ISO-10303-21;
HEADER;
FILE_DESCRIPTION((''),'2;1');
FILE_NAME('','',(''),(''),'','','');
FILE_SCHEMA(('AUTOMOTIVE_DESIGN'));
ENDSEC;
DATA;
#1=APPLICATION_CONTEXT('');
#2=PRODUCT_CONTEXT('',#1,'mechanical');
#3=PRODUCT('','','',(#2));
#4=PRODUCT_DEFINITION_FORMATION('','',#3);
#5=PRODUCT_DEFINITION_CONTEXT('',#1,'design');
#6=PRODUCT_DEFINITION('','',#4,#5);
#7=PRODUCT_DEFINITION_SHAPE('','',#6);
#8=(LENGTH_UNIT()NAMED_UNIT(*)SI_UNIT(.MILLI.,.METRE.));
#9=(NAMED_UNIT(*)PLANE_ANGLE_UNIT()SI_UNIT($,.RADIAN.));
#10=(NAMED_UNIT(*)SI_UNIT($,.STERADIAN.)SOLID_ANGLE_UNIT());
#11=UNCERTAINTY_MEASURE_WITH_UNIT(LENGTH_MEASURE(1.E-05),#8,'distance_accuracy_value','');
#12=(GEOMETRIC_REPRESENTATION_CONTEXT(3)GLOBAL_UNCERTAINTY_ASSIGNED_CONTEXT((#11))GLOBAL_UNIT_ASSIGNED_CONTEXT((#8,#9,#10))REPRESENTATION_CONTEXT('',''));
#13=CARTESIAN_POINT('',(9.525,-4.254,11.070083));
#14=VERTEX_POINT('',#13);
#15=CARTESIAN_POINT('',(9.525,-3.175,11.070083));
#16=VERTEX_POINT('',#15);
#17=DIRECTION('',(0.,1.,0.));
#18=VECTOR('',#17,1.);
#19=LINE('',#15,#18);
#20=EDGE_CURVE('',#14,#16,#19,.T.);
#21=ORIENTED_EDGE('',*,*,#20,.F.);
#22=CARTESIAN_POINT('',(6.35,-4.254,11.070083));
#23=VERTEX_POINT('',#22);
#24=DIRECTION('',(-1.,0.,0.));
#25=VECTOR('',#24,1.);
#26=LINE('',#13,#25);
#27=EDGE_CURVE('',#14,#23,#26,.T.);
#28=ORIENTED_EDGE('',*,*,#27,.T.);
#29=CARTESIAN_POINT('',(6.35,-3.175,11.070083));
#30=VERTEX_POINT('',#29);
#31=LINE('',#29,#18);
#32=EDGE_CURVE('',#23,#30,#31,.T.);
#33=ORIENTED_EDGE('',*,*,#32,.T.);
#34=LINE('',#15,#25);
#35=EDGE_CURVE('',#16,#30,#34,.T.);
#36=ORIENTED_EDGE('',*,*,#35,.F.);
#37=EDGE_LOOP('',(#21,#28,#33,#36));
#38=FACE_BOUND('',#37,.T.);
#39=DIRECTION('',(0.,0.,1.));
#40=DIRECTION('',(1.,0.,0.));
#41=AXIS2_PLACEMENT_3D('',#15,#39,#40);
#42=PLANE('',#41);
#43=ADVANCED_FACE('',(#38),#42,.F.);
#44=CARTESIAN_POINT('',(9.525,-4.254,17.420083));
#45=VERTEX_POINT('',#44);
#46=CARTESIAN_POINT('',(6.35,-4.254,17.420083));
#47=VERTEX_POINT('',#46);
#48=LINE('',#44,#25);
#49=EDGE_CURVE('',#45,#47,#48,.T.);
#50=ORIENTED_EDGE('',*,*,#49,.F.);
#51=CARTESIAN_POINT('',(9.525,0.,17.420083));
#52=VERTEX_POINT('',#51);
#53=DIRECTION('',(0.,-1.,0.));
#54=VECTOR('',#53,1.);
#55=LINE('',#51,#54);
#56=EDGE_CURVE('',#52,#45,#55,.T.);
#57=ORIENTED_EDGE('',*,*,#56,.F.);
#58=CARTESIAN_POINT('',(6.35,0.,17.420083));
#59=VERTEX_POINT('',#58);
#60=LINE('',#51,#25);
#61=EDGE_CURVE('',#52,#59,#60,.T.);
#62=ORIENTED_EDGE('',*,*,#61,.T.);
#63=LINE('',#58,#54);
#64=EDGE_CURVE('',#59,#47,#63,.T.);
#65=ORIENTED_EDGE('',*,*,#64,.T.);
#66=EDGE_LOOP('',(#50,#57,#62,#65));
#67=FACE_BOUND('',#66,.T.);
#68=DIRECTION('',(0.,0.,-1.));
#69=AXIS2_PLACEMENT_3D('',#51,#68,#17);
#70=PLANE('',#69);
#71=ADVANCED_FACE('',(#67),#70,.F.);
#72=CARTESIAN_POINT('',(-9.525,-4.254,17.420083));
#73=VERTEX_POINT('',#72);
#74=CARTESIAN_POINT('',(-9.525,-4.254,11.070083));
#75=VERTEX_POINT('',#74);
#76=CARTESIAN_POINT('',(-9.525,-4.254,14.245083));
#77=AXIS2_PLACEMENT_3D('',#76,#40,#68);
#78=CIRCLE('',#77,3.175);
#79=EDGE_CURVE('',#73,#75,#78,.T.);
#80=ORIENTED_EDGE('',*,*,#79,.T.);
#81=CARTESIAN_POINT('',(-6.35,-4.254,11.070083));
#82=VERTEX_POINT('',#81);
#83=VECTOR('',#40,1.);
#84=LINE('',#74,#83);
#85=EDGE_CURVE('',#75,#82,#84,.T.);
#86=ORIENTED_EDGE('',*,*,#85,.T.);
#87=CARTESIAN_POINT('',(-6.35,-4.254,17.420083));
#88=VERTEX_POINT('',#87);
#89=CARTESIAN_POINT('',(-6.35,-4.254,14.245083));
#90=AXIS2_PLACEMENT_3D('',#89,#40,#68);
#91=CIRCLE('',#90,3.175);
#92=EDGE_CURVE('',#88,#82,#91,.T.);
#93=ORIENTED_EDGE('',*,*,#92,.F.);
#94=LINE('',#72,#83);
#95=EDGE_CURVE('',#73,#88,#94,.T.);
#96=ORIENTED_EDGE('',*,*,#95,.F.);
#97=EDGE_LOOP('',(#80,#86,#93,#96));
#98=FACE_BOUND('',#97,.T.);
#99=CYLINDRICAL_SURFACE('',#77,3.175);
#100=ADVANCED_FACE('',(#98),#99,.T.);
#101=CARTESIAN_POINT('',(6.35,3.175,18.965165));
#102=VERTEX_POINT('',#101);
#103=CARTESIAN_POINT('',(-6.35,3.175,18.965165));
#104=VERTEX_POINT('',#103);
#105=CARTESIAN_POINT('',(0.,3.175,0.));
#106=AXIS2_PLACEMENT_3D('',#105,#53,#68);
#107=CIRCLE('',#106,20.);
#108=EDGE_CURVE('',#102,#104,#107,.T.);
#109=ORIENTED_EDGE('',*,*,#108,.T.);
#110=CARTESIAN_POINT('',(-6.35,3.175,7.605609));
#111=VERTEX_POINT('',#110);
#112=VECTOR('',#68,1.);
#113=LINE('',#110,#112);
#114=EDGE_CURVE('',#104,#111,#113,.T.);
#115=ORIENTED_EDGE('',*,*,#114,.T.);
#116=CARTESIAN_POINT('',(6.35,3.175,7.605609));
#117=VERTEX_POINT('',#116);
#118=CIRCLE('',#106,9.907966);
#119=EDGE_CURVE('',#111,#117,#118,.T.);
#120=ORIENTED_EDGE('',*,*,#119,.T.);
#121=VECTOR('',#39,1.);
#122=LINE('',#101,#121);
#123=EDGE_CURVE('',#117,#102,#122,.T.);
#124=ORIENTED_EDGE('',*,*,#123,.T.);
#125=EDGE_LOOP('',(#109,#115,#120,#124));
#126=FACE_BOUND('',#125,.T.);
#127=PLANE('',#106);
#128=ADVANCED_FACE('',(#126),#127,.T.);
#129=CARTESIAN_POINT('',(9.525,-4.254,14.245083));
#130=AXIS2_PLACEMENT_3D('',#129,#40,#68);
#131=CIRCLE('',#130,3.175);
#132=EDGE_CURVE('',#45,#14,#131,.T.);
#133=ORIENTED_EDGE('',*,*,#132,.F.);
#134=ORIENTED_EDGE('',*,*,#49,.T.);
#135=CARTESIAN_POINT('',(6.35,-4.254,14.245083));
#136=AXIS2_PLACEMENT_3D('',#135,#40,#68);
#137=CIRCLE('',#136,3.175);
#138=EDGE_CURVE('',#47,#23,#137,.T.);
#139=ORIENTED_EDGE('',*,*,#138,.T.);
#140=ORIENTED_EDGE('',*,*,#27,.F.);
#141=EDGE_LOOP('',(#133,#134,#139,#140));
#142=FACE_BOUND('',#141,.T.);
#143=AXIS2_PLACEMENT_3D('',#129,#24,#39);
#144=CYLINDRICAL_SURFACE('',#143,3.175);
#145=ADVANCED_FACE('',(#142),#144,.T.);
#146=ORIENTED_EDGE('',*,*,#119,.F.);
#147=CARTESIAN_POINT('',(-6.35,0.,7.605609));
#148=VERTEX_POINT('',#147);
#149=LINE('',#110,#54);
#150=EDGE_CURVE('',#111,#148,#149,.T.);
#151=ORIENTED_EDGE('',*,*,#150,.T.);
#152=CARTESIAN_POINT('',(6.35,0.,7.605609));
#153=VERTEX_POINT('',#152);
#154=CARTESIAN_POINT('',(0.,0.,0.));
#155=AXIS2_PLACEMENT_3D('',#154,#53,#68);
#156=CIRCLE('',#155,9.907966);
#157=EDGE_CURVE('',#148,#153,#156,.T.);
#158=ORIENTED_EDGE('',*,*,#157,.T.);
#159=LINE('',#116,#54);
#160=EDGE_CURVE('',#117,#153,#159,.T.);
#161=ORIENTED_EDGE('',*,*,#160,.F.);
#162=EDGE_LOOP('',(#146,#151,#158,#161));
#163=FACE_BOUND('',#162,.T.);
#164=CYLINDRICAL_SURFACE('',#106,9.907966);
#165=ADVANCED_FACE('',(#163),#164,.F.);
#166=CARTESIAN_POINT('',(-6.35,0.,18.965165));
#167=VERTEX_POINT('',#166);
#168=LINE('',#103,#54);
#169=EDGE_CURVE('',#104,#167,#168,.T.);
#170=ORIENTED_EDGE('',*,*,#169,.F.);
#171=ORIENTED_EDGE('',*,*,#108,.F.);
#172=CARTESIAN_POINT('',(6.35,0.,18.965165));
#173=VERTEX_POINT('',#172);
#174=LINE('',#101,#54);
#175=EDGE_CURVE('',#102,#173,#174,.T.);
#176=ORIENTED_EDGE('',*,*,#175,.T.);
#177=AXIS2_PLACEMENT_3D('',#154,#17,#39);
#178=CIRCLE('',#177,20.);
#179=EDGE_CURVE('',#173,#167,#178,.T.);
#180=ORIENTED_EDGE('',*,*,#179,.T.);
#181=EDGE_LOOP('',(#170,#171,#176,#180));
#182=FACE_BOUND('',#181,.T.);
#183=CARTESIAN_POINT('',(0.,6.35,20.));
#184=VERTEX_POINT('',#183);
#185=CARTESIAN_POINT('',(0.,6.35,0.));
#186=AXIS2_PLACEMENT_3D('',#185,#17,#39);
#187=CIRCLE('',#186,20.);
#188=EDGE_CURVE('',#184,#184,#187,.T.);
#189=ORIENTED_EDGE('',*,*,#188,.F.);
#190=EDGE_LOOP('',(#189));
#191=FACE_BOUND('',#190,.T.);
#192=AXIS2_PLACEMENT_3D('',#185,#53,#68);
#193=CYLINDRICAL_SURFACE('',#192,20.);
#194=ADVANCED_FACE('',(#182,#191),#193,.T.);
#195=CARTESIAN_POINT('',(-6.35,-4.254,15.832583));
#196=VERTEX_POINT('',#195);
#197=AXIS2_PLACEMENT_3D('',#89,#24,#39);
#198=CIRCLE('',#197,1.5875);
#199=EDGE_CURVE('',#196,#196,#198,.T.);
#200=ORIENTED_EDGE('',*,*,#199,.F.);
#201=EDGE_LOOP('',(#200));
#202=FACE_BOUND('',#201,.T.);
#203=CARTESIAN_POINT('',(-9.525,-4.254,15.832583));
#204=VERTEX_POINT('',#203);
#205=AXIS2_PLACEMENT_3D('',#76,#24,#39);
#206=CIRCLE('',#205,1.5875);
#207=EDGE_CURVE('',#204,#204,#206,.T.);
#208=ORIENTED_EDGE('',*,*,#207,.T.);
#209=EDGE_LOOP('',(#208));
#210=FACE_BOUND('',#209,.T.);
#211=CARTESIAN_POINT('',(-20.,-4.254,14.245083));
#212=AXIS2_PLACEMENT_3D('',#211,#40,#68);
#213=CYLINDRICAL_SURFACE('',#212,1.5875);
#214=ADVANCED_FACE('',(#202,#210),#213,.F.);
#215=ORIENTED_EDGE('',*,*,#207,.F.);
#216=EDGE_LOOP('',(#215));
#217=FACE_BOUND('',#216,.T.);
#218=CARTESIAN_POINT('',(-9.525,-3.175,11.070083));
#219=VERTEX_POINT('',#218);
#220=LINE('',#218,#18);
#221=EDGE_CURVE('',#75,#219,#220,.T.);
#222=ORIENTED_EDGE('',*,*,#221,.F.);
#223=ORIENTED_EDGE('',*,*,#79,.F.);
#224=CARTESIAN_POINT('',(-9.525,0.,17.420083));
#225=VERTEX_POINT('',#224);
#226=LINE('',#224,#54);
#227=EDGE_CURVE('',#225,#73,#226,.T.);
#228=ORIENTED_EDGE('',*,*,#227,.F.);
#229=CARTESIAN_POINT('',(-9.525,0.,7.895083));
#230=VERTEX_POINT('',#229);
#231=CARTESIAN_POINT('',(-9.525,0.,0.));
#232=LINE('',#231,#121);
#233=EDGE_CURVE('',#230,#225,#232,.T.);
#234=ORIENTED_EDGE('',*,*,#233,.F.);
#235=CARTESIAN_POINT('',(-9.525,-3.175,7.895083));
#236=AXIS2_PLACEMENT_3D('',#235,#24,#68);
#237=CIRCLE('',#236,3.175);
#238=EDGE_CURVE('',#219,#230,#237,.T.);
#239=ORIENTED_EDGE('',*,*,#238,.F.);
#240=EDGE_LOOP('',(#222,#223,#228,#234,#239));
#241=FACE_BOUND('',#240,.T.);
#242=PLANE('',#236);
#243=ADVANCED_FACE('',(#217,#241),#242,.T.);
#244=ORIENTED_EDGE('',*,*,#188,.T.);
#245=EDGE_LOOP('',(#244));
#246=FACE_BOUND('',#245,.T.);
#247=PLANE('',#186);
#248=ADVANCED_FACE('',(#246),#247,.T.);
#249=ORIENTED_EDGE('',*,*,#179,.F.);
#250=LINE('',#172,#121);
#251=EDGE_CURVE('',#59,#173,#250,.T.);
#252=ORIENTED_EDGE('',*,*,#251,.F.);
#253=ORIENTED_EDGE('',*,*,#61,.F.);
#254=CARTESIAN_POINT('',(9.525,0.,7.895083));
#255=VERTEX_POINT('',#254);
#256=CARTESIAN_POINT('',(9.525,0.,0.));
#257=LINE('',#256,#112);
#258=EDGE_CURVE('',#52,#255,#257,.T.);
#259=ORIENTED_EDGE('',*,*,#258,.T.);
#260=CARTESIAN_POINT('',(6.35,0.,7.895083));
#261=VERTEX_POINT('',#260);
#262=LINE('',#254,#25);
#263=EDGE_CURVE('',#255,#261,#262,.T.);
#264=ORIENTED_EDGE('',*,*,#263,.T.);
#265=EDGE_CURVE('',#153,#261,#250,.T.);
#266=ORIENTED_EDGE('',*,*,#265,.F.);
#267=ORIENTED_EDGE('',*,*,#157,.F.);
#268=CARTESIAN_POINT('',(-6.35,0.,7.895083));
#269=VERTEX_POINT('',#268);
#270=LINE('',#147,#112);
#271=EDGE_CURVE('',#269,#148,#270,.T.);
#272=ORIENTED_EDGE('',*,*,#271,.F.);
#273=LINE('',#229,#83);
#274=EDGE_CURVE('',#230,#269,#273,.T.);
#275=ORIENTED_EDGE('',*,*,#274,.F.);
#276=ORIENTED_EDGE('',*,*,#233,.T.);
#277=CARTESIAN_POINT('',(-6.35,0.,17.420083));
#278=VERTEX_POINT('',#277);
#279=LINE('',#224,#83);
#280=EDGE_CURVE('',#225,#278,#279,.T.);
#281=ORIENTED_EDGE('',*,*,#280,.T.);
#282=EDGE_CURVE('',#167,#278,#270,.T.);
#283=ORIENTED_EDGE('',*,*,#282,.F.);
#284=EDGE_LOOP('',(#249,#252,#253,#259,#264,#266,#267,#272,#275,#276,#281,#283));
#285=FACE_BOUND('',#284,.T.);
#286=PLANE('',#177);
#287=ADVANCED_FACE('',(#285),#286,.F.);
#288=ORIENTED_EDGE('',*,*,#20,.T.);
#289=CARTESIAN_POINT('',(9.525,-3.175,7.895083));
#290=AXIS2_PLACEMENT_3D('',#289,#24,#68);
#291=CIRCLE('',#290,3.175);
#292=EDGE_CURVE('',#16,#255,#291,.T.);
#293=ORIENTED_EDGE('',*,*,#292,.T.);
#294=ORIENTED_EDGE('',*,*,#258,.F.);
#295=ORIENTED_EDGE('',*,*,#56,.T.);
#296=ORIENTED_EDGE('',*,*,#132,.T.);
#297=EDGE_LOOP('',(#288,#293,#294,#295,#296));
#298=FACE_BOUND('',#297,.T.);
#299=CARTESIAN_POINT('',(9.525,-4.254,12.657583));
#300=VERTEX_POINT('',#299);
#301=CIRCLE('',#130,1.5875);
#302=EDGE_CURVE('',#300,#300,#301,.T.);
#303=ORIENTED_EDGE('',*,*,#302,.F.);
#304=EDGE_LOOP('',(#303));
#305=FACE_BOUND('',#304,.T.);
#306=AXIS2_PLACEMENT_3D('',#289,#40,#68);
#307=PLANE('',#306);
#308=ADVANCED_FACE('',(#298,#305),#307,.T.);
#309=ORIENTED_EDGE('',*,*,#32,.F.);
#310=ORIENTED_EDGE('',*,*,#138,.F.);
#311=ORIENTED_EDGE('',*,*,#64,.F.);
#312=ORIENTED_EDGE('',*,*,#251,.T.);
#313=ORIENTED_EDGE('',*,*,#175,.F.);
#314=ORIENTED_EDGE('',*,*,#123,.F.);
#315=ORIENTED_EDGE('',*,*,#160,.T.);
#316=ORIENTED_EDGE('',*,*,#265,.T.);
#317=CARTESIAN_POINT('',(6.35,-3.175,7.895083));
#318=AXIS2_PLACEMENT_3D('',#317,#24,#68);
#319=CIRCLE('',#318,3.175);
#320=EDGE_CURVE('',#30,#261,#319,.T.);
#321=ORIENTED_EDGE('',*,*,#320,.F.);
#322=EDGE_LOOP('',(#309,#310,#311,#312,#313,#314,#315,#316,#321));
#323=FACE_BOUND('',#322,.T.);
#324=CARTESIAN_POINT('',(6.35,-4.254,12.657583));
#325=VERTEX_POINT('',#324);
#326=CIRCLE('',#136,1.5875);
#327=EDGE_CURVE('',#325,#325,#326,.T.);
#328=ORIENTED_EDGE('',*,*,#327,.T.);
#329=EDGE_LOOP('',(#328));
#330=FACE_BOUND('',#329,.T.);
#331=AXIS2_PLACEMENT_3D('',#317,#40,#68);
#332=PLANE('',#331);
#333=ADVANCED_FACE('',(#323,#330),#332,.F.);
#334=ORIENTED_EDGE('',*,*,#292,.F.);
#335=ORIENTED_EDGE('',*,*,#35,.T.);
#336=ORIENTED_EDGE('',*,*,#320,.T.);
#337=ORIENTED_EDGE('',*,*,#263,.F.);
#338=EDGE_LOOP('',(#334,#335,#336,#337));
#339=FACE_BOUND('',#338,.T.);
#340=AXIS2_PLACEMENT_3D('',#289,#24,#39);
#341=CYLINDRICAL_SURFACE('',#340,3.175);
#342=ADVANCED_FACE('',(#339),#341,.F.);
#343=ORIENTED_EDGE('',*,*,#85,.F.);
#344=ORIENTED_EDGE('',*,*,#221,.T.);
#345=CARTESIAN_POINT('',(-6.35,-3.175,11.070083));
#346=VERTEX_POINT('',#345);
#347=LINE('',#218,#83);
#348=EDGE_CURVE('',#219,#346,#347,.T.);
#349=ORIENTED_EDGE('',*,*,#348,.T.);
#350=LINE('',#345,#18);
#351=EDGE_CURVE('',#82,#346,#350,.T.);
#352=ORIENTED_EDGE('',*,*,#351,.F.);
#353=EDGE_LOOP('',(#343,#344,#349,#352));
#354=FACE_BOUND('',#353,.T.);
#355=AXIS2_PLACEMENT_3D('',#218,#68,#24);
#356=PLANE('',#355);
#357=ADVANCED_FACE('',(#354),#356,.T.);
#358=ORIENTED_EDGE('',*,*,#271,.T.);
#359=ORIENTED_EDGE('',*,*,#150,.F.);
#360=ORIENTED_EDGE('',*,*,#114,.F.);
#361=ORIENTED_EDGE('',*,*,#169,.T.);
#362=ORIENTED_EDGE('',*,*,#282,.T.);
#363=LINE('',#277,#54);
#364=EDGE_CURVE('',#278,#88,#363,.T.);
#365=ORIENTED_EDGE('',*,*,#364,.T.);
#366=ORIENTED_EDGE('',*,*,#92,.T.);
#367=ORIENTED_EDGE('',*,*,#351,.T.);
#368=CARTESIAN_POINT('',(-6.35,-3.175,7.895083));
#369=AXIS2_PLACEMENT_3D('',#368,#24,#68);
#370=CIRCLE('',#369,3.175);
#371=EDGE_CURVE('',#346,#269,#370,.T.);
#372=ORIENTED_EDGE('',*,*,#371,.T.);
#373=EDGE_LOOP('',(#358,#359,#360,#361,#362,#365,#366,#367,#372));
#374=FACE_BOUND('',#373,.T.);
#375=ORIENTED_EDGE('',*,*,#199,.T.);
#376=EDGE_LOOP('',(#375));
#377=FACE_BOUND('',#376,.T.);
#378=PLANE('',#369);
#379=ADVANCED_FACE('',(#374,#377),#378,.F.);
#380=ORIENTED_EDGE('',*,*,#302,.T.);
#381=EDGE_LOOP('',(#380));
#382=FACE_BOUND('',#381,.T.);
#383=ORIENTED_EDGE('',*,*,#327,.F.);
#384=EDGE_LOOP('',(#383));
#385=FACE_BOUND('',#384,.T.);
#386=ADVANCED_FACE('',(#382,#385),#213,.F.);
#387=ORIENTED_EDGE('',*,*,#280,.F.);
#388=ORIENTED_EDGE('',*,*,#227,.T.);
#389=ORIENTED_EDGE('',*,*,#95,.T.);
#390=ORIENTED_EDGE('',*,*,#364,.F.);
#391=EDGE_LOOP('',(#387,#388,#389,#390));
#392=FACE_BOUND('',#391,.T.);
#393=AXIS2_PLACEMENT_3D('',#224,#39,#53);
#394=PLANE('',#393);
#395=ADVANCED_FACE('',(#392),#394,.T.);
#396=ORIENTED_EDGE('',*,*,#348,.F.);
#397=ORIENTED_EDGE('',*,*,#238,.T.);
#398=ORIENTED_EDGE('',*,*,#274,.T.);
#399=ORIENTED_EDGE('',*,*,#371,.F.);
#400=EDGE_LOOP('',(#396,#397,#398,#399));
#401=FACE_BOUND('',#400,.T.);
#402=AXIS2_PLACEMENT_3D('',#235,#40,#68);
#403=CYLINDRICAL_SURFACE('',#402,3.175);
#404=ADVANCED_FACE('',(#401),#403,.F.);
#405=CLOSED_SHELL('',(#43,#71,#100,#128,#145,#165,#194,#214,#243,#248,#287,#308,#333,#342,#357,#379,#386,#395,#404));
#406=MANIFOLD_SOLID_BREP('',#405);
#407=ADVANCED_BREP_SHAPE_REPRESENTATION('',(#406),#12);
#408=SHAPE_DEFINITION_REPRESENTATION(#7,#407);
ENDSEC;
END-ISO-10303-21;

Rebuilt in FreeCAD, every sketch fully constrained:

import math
import FreeCAD as App
import Part
import Sketcher
Q = App.Units.Quantity

doc = App.newDocument("Part")
body = doc.addObject("PartDesign::Body", "Body")

sketch1 = body.newObject("Sketcher::SketchObject", "Sketch")
sketch1.AttachmentSupport = (doc.getObject("XZ_Plane"), [""])
sketch1.MapMode = "FlatFace"
sketch1.addGeometry(Part.Circle(App.Vector(0, 0, 0), App.Vector(0, 0, 1), 20), False)
sketch1.addConstraint(Sketcher.Constraint("Coincident", 0, 3, -1, 1))
sketch1.addConstraint(Sketcher.Constraint("Diameter", 0, Q("40 mm")))
pad1 = body.newObject("PartDesign::Pad", "Pad")
pad1.Profile = sketch1
pad1.Length = Q("0.25 in")
pad1.Reversed = True

sketch2 = body.newObject("Sketcher::SketchObject", "Sketch001")
sketch2.AttachmentSupport = (doc.getObject("YZ_Plane"), [""])
sketch2.MapMode = "FlatFace"
sketch2.AttachmentOffset = App.Placement(App.Vector(0, 0, 0.25 * 25.4), App.Rotation())
sketch2.addGeometry(Part.LineSegment(App.Vector(0, 17.4, 0), App.Vector(-4.3, 17.4, 0)), False)
sketch2.addGeometry(Part.ArcOfCircle(Part.Circle(App.Vector(-4.3, 14.2, 0), App.Vector(0, 0, 1), 3.2), math.radians(90), math.radians(270)), False)
sketch2.addGeometry(Part.LineSegment(App.Vector(-4.3, 11.1, 0), App.Vector(-3.2, 11.1, 0)), False)
sketch2.addGeometry(Part.ArcOfCircle(Part.Circle(App.Vector(-3.2, 7.9, 0), App.Vector(0, 0, 1), 3.2), math.radians(0), math.radians(90)), False)
sketch2.addGeometry(Part.LineSegment(App.Vector(0, 7.9, 0), App.Vector(0, 5.8, 0)), False)
sketch2.addGeometry(Part.LineSegment(App.Vector(0, 5.8, 0), App.Vector(6.3, 5.8, 0)), False)
sketch2.addGeometry(Part.LineSegment(App.Vector(6.3, 5.8, 0), App.Vector(6.3, 11.1, 0)), False)
sketch2.addGeometry(Part.ArcOfCircle(Part.Circle(App.Vector(0, 11.1, 0), App.Vector(0, 0, 1), 6.3), math.radians(0), math.radians(90)), False)
sketch2.addConstraint(Sketcher.Constraint("Tangent", 0, 2, 1, 1))
sketch2.addConstraint(Sketcher.Constraint("Tangent", 1, 2, 2, 1))
sketch2.addConstraint(Sketcher.Constraint("Tangent", 2, 2, 3, 2))
sketch2.addConstraint(Sketcher.Constraint("Tangent", 3, 1, 4, 1))
sketch2.addConstraint(Sketcher.Constraint("Coincident", 4, 2, 5, 1))
sketch2.addConstraint(Sketcher.Constraint("Coincident", 5, 2, 6, 1))
sketch2.addConstraint(Sketcher.Constraint("Tangent", 6, 2, 7, 1))
sketch2.addConstraint(Sketcher.Constraint("Tangent", 7, 2, 0, 1))
sketch2.addConstraint(Sketcher.Constraint("Horizontal", 0))
sketch2.addConstraint(Sketcher.Constraint("Horizontal", 2))
sketch2.addConstraint(Sketcher.Constraint("Vertical", 4))
sketch2.addConstraint(Sketcher.Constraint("Horizontal", 5))
sketch2.addConstraint(Sketcher.Constraint("Vertical", 6))
sketch2.addConstraint(Sketcher.Constraint("Equal", 1, 3))
sketch2.addConstraint(Sketcher.Constraint("PointOnObject", 7, 3, -2))
sketch2.addConstraint(Sketcher.Constraint("PointOnObject", 3, 1, -2))
sketch2.addConstraint(Sketcher.Constraint("Horizontal", 7, 3, 1, 2))
sketch2.addConstraint(Sketcher.Constraint("Radius", 7, Q("0.25 in")))
sketch2.addConstraint(Sketcher.Constraint("DistanceX", 0, 2, 0, 1, Q("4.254 mm")))
sketch2.addConstraint(Sketcher.Constraint("DistanceY", 4, 2, 4, 1, Q("2.045922 mm")))
sketch2.addConstraint(Sketcher.Constraint("DistanceY", -1, 1, 4, 2, Q("5.849161 mm")))
pad2 = body.newObject("PartDesign::Pad", "Pad001")
pad2.Profile = sketch2
pad2.Length = Q("0.125 in")
doc.recompute()

mirrored = body.newObject("PartDesign::Mirrored", "Mirrored")
mirrored.Originals = [pad2]
mirrored.MirrorPlane = (doc.getObject("YZ_Plane"), [""])
body.Tip = mirrored

sketch3 = body.newObject("Sketcher::SketchObject", "Sketch002")
sketch3.AttachmentSupport = (doc.getObject("YZ_Plane"), [""])
sketch3.MapMode = "FlatFace"
sketch3.AttachmentOffset = App.Placement(App.Vector(0, 0, 0.375 * 25.4), App.Rotation())
sketch3.addGeometry(Part.Circle(App.Vector(-4.3, 14.2, 0), App.Vector(0, 0, 1), 1.6), False)
sketch3.addConstraint(Sketcher.Constraint("Diameter", 0, Q("0.125 in")))
sketch3.addConstraint(Sketcher.Constraint("DistanceX", 0, 3, -1, 1, Q("4.254 mm")))
sketch3.addConstraint(Sketcher.Constraint("DistanceY", -1, 1, 0, 3, Q("14.245083 mm")))
pocket1 = body.newObject("PartDesign::Pocket", "Pocket")
pocket1.Profile = sketch3
pocket1.Type = "ThroughAll"

sketch4 = body.newObject("Sketcher::SketchObject", "Sketch003")
sketch4.AttachmentSupport = (doc.getObject("XZ_Plane"), [""])
sketch4.MapMode = "FlatFace"
sketch4.addGeometry(Part.LineSegment(App.Vector(6, 8, 0), App.Vector(6, 19, 0)), False)
sketch4.addGeometry(Part.ArcOfCircle(Part.Circle(App.Vector(0, 0, 0), App.Vector(0, 0, 1), 20), math.radians(71), math.radians(109)), False)
sketch4.addGeometry(Part.LineSegment(App.Vector(-6, 19, 0), App.Vector(-6, 8, 0)), False)
sketch4.addGeometry(Part.ArcOfCircle(Part.Circle(App.Vector(0, 0, 0), App.Vector(0, 0, 1), 10), math.radians(130), math.radians(410)), False)
sketch4.addConstraint(Sketcher.Constraint("Coincident", 0, 2, 1, 1))
sketch4.addConstraint(Sketcher.Constraint("Coincident", 1, 2, 2, 1))
sketch4.addConstraint(Sketcher.Constraint("Coincident", 2, 2, 3, 1))
sketch4.addConstraint(Sketcher.Constraint("Coincident", 3, 2, 0, 1))
sketch4.addConstraint(Sketcher.Constraint("Vertical", 0))
sketch4.addConstraint(Sketcher.Constraint("Vertical", 2))
sketch4.addConstraint(Sketcher.Constraint("Coincident", 1, 3, -1, 1))
sketch4.addConstraint(Sketcher.Constraint("Coincident", 3, 3, -1, 1))
sketch4.addConstraint(Sketcher.Constraint("Horizontal", 0, 2, 1, 2))
sketch4.addConstraint(Sketcher.Constraint("DistanceX", 1, 2, 0, 2, Q("0.5 in")))
sketch4.addConstraint(Sketcher.Constraint("Radius", 1, Q("20 mm")))
sketch4.addConstraint(Sketcher.Constraint("Radius", 3, Q("9.907966 mm")))
pocket2 = body.newObject("PartDesign::Pocket", "Pocket001")
pocket2.Profile = sketch4
pocket2.Length = Q("0.125 in")

doc.recompute()
